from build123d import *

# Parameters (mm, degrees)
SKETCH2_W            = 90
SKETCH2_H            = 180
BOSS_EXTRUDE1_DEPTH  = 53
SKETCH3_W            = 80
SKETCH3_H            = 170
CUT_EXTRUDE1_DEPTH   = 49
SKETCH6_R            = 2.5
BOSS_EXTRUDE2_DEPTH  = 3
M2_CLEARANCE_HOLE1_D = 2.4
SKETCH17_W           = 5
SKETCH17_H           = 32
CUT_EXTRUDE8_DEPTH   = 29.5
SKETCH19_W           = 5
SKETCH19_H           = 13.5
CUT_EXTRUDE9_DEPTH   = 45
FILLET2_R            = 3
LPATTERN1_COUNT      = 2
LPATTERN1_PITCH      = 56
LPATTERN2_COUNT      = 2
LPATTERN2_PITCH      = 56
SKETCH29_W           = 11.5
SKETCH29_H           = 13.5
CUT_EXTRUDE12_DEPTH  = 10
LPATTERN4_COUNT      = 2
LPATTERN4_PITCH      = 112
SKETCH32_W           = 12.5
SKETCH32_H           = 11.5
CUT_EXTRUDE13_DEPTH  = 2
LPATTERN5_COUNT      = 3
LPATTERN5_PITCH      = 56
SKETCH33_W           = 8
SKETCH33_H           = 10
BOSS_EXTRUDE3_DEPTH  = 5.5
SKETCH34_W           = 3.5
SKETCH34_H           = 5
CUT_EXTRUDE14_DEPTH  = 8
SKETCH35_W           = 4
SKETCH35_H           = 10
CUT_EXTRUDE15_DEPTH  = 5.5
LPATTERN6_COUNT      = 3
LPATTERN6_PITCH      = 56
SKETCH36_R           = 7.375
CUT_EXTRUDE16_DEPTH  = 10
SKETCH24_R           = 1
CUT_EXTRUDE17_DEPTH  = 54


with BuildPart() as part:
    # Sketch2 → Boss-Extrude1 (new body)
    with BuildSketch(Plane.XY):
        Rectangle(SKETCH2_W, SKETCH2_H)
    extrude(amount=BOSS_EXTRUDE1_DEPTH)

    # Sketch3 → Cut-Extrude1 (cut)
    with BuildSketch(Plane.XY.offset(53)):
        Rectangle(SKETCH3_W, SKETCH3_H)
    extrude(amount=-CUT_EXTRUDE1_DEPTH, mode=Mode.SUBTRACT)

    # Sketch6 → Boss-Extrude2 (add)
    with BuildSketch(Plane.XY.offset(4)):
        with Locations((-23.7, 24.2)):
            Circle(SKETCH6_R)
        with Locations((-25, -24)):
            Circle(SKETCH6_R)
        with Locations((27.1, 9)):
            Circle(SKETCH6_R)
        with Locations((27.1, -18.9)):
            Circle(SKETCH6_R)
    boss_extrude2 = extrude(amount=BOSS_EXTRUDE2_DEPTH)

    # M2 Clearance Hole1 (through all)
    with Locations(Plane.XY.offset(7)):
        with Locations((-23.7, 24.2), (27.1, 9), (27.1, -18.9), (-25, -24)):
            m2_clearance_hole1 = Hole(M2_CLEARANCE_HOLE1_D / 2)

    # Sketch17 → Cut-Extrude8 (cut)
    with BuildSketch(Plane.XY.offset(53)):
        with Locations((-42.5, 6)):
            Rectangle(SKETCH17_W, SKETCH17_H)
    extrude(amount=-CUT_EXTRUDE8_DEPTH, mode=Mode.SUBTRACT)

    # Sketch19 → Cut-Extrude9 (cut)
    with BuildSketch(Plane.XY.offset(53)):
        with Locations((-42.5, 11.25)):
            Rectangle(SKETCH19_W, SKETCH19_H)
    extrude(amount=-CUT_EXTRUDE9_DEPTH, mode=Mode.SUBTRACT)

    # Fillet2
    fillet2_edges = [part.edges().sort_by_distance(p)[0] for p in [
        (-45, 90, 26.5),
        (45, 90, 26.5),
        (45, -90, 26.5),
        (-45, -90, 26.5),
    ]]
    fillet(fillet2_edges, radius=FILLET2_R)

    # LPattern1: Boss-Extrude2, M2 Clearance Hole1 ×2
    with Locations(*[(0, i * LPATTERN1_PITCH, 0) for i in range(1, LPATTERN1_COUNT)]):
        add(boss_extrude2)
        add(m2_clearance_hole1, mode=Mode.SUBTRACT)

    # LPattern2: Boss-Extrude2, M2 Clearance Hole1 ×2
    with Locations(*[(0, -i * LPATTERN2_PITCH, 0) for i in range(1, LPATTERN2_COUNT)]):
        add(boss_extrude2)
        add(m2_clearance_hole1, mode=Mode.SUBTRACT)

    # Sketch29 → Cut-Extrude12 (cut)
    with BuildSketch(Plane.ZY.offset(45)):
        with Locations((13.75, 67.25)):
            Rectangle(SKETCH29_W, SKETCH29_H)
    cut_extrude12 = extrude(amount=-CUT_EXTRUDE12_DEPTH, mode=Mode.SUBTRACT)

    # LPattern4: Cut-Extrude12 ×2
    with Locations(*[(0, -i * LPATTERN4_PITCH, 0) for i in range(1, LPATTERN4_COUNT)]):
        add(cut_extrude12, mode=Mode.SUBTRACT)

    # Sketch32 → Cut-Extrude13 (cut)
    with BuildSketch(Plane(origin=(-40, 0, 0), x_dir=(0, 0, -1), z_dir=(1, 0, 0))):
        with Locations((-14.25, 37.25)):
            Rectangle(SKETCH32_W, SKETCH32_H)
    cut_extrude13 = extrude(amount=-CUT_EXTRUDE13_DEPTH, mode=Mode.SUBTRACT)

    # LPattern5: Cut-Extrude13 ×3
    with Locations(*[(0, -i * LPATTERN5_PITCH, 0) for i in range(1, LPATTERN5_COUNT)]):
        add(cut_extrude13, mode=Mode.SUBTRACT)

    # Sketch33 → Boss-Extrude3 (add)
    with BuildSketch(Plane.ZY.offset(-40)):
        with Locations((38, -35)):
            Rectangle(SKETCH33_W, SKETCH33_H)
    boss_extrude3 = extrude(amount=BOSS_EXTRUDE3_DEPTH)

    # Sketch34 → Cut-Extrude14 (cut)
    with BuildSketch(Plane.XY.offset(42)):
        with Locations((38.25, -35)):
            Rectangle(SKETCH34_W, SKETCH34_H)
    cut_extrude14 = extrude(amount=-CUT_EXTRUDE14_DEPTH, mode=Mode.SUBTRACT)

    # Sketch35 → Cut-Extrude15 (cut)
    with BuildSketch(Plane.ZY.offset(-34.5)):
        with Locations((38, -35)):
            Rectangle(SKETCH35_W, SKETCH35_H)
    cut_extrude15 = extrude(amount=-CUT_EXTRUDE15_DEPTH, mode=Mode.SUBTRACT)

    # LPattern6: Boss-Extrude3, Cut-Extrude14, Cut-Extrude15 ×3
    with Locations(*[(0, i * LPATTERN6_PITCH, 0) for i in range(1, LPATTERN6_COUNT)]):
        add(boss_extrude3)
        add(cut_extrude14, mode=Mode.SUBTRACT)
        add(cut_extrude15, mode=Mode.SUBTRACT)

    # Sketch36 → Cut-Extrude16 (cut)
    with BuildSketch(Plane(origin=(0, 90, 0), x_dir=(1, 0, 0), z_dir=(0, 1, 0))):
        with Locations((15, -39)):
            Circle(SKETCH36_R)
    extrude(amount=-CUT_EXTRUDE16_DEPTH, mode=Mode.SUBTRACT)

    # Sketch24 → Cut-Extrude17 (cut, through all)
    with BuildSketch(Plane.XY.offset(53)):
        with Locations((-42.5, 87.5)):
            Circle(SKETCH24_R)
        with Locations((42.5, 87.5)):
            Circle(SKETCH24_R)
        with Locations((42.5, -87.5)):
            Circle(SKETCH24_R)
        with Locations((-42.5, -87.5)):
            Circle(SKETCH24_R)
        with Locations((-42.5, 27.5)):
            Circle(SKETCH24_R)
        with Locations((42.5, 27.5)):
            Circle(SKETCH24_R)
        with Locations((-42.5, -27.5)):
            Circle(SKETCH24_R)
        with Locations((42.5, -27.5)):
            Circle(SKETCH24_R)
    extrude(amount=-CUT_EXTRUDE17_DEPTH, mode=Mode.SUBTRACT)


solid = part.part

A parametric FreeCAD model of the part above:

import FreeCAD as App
import Part
import Sketcher
from FreeCAD import Vector
Q = App.Units.Quantity


def edges_at(feature, points):
    """Names of the edges that pass closest to the given points."""
    edges = feature.Shape.Edges
    near = lambda p: min(range(len(edges)), key=lambda i: edges[i].distToShape(Part.Vertex(*p))[0])
    return sorted({f"Edge{near(p) + 1}" for p in points})


def add_polygon(sketch, points):
    """Adds a closed chain of lines whose ends are joined by coincident constraints."""
    first, n = sketch.GeometryCount, len(points)
    for a, b in zip(points, points[1:] + points[:1]):
        sketch.addGeometry(Part.LineSegment(App.Vector(*a, 0), App.Vector(*b, 0)), False)
    for i in range(n):
        sketch.addConstraint(Sketcher.Constraint("Coincident", first + i, 2, first + (i + 1) % n, 1))

doc = App.newDocument("Part")
body = doc.addObject("PartDesign::Body", "Body")

# Sketch on XY plane
sketch1 = body.newObject("Sketcher::SketchObject", "Sketch")
sketch1.AttachmentSupport = (doc.getObject("XY_Plane"), [""])
sketch1.MapMode = "FlatFace"
add_polygon(sketch1, [(-45, 90), (-45, -90), (45, -90), (45, 90)])  # lines 0-3
sketch1.addConstraint([
    Sketcher.Constraint("Vertical", 0),
    Sketcher.Constraint("Horizontal", 1),
    Sketcher.Constraint("Vertical", 2),
    Sketcher.Constraint("Horizontal", 3),
    Sketcher.Constraint("Symmetric", 0, 2, 2, 2, -1, 1),
    Sketcher.Constraint("DistanceX", 1, 1, 1, 2, Q("90 mm")),
    Sketcher.Constraint("DistanceY", 0, 2, 0, 1, Q("180 mm")),
])
pad1 = body.newObject("PartDesign::Pad", "Pad")
pad1.Profile = sketch1
pad1.Length = 53

# Sketch on XY plane
sketch2 = body.newObject("Sketcher::SketchObject", "Sketch001")
sketch2.AttachmentSupport = (doc.getObject("XY_Plane"), [""])
sketch2.MapMode = "FlatFace"
sketch2.AttachmentOffset = App.Placement(Vector(0, 0, 53), App.Rotation())
add_polygon(sketch2, [(-40, 85), (-40, -85), (40, -85), (40, 85)])  # lines 0-3
sketch2.addConstraint([
    Sketcher.Constraint("Vertical", 0),
    Sketcher.Constraint("Horizontal", 1),
    Sketcher.Constraint("Vertical", 2),
    Sketcher.Constraint("Horizontal", 3),
    Sketcher.Constraint("Symmetric", 0, 2, 2, 2, -1, 1),
    Sketcher.Constraint("DistanceX", 1, 1, 1, 2, Q("80 mm")),
    Sketcher.Constraint("DistanceY", 0, 2, 0, 1, Q("170 mm")),
])
pocket1 = body.newObject("PartDesign::Pocket", "Pocket")
pocket1.Profile = sketch2
pocket1.Length = 49

# Sketch on XY plane
sketch3 = body.newObject("Sketcher::SketchObject", "Sketch002")
sketch3.AttachmentSupport = (doc.getObject("XY_Plane"), [""])
sketch3.MapMode = "FlatFace"
sketch3.AttachmentOffset = App.Placement(Vector(0, 0, 4), App.Rotation())
sketch3.addGeometry([
    Part.Circle(Vector(-23.7, 24.2, 0), Vector(0, 0, 1), 2.5),
    Part.Circle(Vector(-25, -24, 0), Vector(0, 0, 1), 2.5),
    Part.Circle(Vector(27.1, 9, 0), Vector(0, 0, 1), 2.5),
    Part.Circle(Vector(27.1, -18.9, 0), Vector(0, 0, 1), 2.5),
], False)
sketch3.addConstraint([
    Sketcher.Constraint("Equal", 0, 1),
    Sketcher.Constraint("Equal", 1, 2),
    Sketcher.Constraint("Equal", 2, 3),
    Sketcher.Constraint("Vertical", 2, 3, 3, 3),
    Sketcher.Constraint("Diameter", 0, Q("5 mm")),
    Sketcher.Constraint("DistanceX", 1, 3, -1, 1, Q("25 mm")),
    Sketcher.Constraint("DistanceY", 1, 3, -1, 1, Q("24 mm")),
    Sketcher.Constraint("DistanceY", -1, 1, 2, 3, Q("9 mm")),
    Sketcher.Constraint("DistanceX", 0, 3, -1, 1, Q("23.7 mm")),
    Sketcher.Constraint("DistanceY", -1, 1, 0, 3, Q("24.2 mm")),
    Sketcher.Constraint("DistanceX", -1, 1, 2, 3, Q("27.1 mm")),
    Sketcher.Constraint("DistanceY", 3, 3, -1, 1, Q("18.9 mm")),
])
pad2 = body.newObject("PartDesign::Pad", "Pad001")
pad2.Profile = sketch3
pad2.Length = 3

# Sketch on XY plane
sketch4 = body.newObject("Sketcher::SketchObject", "Sketch003")
sketch4.AttachmentSupport = (doc.getObject("XY_Plane"), [""])
sketch4.MapMode = "FlatFace"
sketch4.AttachmentOffset = App.Placement(Vector(0, 0, 7), App.Rotation())
sketch4.addGeometry([
    Part.Circle(Vector(-23.7, 24.2, 0), Vector(0, 0, 1), 1.2),
    Part.Circle(Vector(27.1, 9, 0), Vector(0, 0, 1), 1.2),
    Part.Circle(Vector(27.1, -18.9, 0), Vector(0, 0, 1), 1.2),
    Part.Circle(Vector(-25, -24, 0), Vector(0, 0, 1), 1.2),
], False)
sketch4.addConstraint([
    Sketcher.Constraint("Equal", 0, 1),
    Sketcher.Constraint("Equal", 1, 2),
    Sketcher.Constraint("Equal", 2, 3),
    Sketcher.Constraint("Vertical", 1, 3, 2, 3),
    Sketcher.Constraint("Diameter", 0, Q("2.4 mm")),
    Sketcher.Constraint("DistanceY", -1, 1, 1, 3, Q("9 mm")),
    Sketcher.Constraint("DistanceX", 3, 3, -1, 1, Q("25 mm")),
    Sketcher.Constraint("DistanceY", 3, 3, -1, 1, Q("24 mm")),
    Sketcher.Constraint("DistanceX", 0, 3, -1, 1, Q("23.7 mm")),
    Sketcher.Constraint("DistanceY", -1, 1, 0, 3, Q("24.2 mm")),
    Sketcher.Constraint("DistanceX", -1, 1, 1, 3, Q("27.1 mm")),
    Sketcher.Constraint("DistanceY", 2, 3, -1, 1, Q("18.9 mm")),
])
doc.recompute()
hole = body.newObject("PartDesign::Hole", "Hole")
hole.Profile = sketch4
hole.ThreadType = "None"
hole.Diameter = 2.4
hole.DepthType = "ThroughAll"

# Sketch on XY plane
sketch5 = body.newObject("Sketcher::SketchObject", "Sketch004")
sketch5.AttachmentSupport = (doc.getObject("XY_Plane"), [""])
sketch5.MapMode = "FlatFace"
sketch5.AttachmentOffset = App.Placement(Vector(0, 0, 53), App.Rotation())
add_polygon(sketch5, [(-45, 22), (-45, -10), (-40, -10), (-40, 22)])  # lines 0-3
sketch5.addConstraint([
    Sketcher.Constraint("Vertical", 0),
    Sketcher.Constraint("Horizontal", 1),
    Sketcher.Constraint("Vertical", 2),
    Sketcher.Constraint("Horizontal", 3),
    Sketcher.Constraint("DistanceX", 1, 1, 1, 2, Q("5 mm")),
    Sketcher.Constraint("DistanceY", 0, 2, 0, 1, Q("32 mm")),
    Sketcher.Constraint("DistanceX", 0, 2, -1, 1, Q("45 mm")),
    Sketcher.Constraint("DistanceY", 0, 2, -1, 1, Q("10 mm")),
])
pocket2 = body.newObject("PartDesign::Pocket", "Pocket001")
pocket2.Profile = sketch5
pocket2.Length = 29.5

# Sketch on XY plane
sketch6 = body.newObject("Sketcher::SketchObject", "Sketch005")
sketch6.AttachmentSupport = (doc.getObject("XY_Plane"), [""])
sketch6.MapMode = "FlatFace"
sketch6.AttachmentOffset = App.Placement(Vector(0, 0, 53), App.Rotation())
add_polygon(sketch6, [(-45, 18), (-45, 4), (-40, 4), (-40, 18)])  # lines 0-3
sketch6.addConstraint([
    Sketcher.Constraint("Vertical", 0),
    Sketcher.Constraint("Horizontal", 1),
    Sketcher.Constraint("Vertical", 2),
    Sketcher.Constraint("Horizontal", 3),
    Sketcher.Constraint("DistanceX", 1, 1, 1, 2, Q("5 mm")),
    Sketcher.Constraint("DistanceY", 0, 2, 0, 1, Q("13.5 mm")),
    Sketcher.Constraint("DistanceX", 0, 2, -1, 1, Q("45 mm")),
    Sketcher.Constraint("DistanceY", -1, 1, 2, 2, Q("18 mm")),
])
pocket3 = body.newObject("PartDesign::Pocket", "Pocket002")
pocket3.Profile = sketch6
pocket3.Length = 45
doc.recompute()

fillet = body.newObject("PartDesign::Fillet", "Fillet")
fillet.Base = (pocket3, edges_at(pocket3, [
    (-45, 90, 26.5),
    (45, 90, 26.5),
    (45, -90, 26.5),
    (-45, -90, 26.5),
]))
fillet.Radius = 3
doc.recompute()

linearpattern = body.newObject("PartDesign::LinearPattern", "LinearPattern")
linearpattern.Originals = [pad2, hole]
linearpattern.Direction = (doc.getObject("Y_Axis"), [""])
linearpattern.Mode = "offset"
linearpattern.Offset = 56
linearpattern.Occurrences = 2
body.Tip = linearpattern
doc.recompute()

linearpattern2 = body.newObject("PartDesign::LinearPattern", "LinearPattern001")
linearpattern2.Originals = [pad2, hole]
linearpattern2.Direction = (doc.getObject("Y_Axis"), [""])
linearpattern2.Mode = "offset"
linearpattern2.Offset = 56
linearpattern2.Occurrences = 2
linearpattern2.Reversed = True
body.Tip = linearpattern2

# Sketch on YZ plane
sketch7 = body.newObject("Sketcher::SketchObject", "Sketch006")
sketch7.AttachmentSupport = (doc.getObject("YZ_Plane"), [""])
sketch7.MapMode = "FlatFace"
sketch7.AttachmentOffset = App.Placement(Vector(0, 0, -45), App.Rotation())
add_polygon(sketch7, [(74, 8), (60, 8), (60, 20), (74, 20)])  # lines 0-3
sketch7.addConstraint([
    Sketcher.Constraint("Horizontal", 0),
    Sketcher.Constraint("Vertical", 1),
    Sketcher.Constraint("Horizontal", 2),
    Sketcher.Constraint("Vertical", 3),
    Sketcher.Constraint("DistanceX", 0, 2, 0, 1, Q("13.5 mm")),
    Sketcher.Constraint("DistanceY", 1, 1, 1, 2, Q("11.5 mm")),
    Sketcher.Constraint("DistanceY", -1, 1, 0, 2, Q("8 mm")),
    Sketcher.Constraint("DistanceX", -1, 1, 2, 2, Q("74 mm")),
])
pocket4 = body.newObject("PartDesign::Pocket", "Pocket003")
pocket4.Profile = sketch7
pocket4.Length = 10
pocket4.Reversed = True
doc.recompute()

linearpattern3 = body.newObject("PartDesign::LinearPattern", "LinearPattern002")
linearpattern3.Originals = [pocket4]
linearpattern3.Direction = (doc.getObject("Y_Axis"), [""])
linearpattern3.Mode = "offset"
linearpattern3.Offset = 112
linearpattern3.Occurrences = 2
linearpattern3.Reversed = True
body.Tip = linearpattern3

# Sketch on YZ plane
sketch8 = body.newObject("Sketcher::SketchObject", "Sketch007")
sketch8.AttachmentSupport = (doc.getObject("YZ_Plane"), [""])
sketch8.MapMode = "FlatFace"
sketch8.AttachmentOffset = App.Placement(Vector(0, 0, -40), App.Rotation())
add_polygon(sketch8, [(43, 20), (32, 20), (32, 8), (43, 8)])  # lines 0-3
sketch8.addConstraint([
    Sketcher.Constraint("Horizontal", 0),
    Sketcher.Constraint("Vertical", 1),
    Sketcher.Constraint("Horizontal", 2),
    Sketcher.Constraint("Vertical", 3),
    Sketcher.Constraint("DistanceX", 0, 2, 0, 1, Q("11.5 mm")),
    Sketcher.Constraint("DistanceY", 1, 2, 1, 1, Q("12.5 mm")),
    Sketcher.Constraint("DistanceY", -1, 1, 1, 2, Q("8 mm")),
    Sketcher.Constraint("DistanceX", -1, 1, 2, 2, Q("43 mm")),
])
pocket5 = body.newObject("PartDesign::Pocket", "Pocket004")
pocket5.Profile = sketch8
pocket5.Length = 2
doc.recompute()

linearpattern4 = body.newObject("PartDesign::LinearPattern", "LinearPattern003")
linearpattern4.Originals = [pocket5]
linearpattern4.Direction = (doc.getObject("Y_Axis"), [""])
linearpattern4.Mode = "offset"
linearpattern4.Offset = 56
linearpattern4.Occurrences = 3
linearpattern4.Reversed = True
body.Tip = linearpattern4

# Sketch on YZ plane
sketch9 = body.newObject("Sketcher::SketchObject", "Sketch008")
sketch9.AttachmentSupport = (doc.getObject("YZ_Plane"), [""])
sketch9.MapMode = "FlatFace"
sketch9.AttachmentOffset = App.Placement(Vector(0, 0, 40), App.Rotation())
add_polygon(sketch9, [(-30, 34), (-40, 34), (-40, 42), (-30, 42)])  # lines 0-3
sketch9.addConstraint([
    Sketcher.Constraint("Horizontal", 0),
    Sketcher.Constraint("Vertical", 1),
    Sketcher.Constraint("Horizontal", 2),
    Sketcher.Constraint("Vertical", 3),
    Sketcher.Constraint("DistanceX", 0, 2, 0, 1, Q("10 mm")),
    Sketcher.Constraint("DistanceY", 1, 1, 1, 2, Q("8 mm")),
    Sketcher.Constraint("DistanceX", 0, 2, -1, 1, Q("40 mm")),
    Sketcher.Constraint("DistanceY", -1, 1, 0, 2, Q("34 mm")),
])
pad3 = body.newObject("PartDesign::Pad", "Pad002")
pad3.Profile = sketch9
pad3.Length = 5.5
pad3.Reversed = True

# Sketch on XY plane
sketch10 = body.newObject("Sketcher::SketchObject", "Sketch009")
sketch10.AttachmentSupport = (doc.getObject("XY_Plane"), [""])
sketch10.MapMode = "FlatFace"
sketch10.AttachmentOffset = App.Placement(Vector(0, 0, 42), App.Rotation())
add_polygon(sketch10, [(36.5, -32.5), (36.5, -37.5), (40, -37.5), (40, -32.5)])  # lines 0-3
sketch10.addConstraint([
    Sketcher.Constraint("Vertical", 0),
    Sketcher.Constraint("Horizontal", 1),
    Sketcher.Constraint("Vertical", 2),
    Sketcher.Constraint("Horizontal", 3),
    Sketcher.Constraint("DistanceY", 0, 2, 0, 1, Q("5 mm")),
    Sketcher.Constraint("DistanceX", 1, 1, 1, 2, Q("3.5 mm")),
    Sketcher.Constraint("DistanceX", -1, 1, 1, 2, Q("40 mm")),
    Sketcher.Constraint("DistanceY", 0, 2, -1, 1, Q("37.5 mm")),
])
pocket6 = body.newObject("PartDesign::Pocket", "Pocket005")
pocket6.Profile = sketch10
pocket6.Length = 8

# Sketch on YZ plane
sketch11 = body.newObject("Sketcher::SketchObject", "Sketch010")
sketch11.AttachmentSupport = (doc.getObject("YZ_Plane"), [""])
sketch11.MapMode = "FlatFace"
sketch11.AttachmentOffset = App.Placement(Vector(0, 0, 34.5), App.Rotation())
add_polygon(sketch11, [(-30, 36), (-40, 36), (-40, 40), (-30, 40)])  # lines 0-3
sketch11.addConstraint([
    Sketcher.Constraint("Horizontal", 0),
    Sketcher.Constraint("Vertical", 1),
    Sketcher.Constraint("Horizontal", 2),
    Sketcher.Constraint("Vertical", 3),
    Sketcher.Constraint("DistanceX", 0, 2, 0, 1, Q("10 mm")),
    Sketcher.Constraint("DistanceY", 1, 1, 1, 2, Q("4 mm")),
    Sketcher.Constraint("DistanceX", 0, 2, -1, 1, Q("40 mm")),
    Sketcher.Constraint("DistanceY", -1, 1, 0, 2, Q("36 mm")),
])
pocket7 = body.newObject("PartDesign::Pocket", "Pocket006")
pocket7.Profile = sketch11
pocket7.Length = 5.5
pocket7.Reversed = True
doc.recompute()

linearpattern5 = body.newObject("PartDesign::LinearPattern", "LinearPattern004")
linearpattern5.Originals = [pad3, pocket6, pocket7]
linearpattern5.Direction = (doc.getObject("Y_Axis"), [""])
linearpattern5.Mode = "offset"
linearpattern5.Offset = 56
linearpattern5.Occurrences = 3
body.Tip = linearpattern5

# Sketch on XZ plane
sketch12 = body.newObject("Sketcher::SketchObject", "Sketch011")
sketch12.AttachmentSupport = (doc.getObject("XZ_Plane"), [""])
sketch12.MapMode = "FlatFace"
sketch12.AttachmentOffset = App.Placement(Vector(0, 0, -90), App.Rotation())
sketch12.addGeometry(Part.Circle(Vector(15, 39, 0), Vector(0, 0, 1), 7), False)
sketch12.addConstraint([
    Sketcher.Constraint("Diameter", 0, Q("14.75 mm")),
    Sketcher.Constraint("DistanceX", -1, 1, 0, 3, Q("15 mm")),
    Sketcher.Constraint("DistanceY", -1, 1, 0, 3, Q("39 mm")),
])
pocket8 = body.newObject("PartDesign::Pocket", "Pocket007")
pocket8.Profile = sketch12
pocket8.Length = 10
pocket8.Reversed = True

# Sketch on XY plane
sketch13 = body.newObject("Sketcher::SketchObject", "Sketch012")
sketch13.AttachmentSupport = (doc.getObject("XY_Plane"), [""])
sketch13.MapMode = "FlatFace"
sketch13.AttachmentOffset = App.Placement(Vector(0, 0, 53), App.Rotation())
sketch13.addGeometry([
    Part.Circle(Vector(-42.5, 87.5, 0), Vector(0, 0, 1), 1),  # 0
    Part.Circle(Vector(42.5, 87.5, 0), Vector(0, 0, 1), 1),  # 1
    Part.Circle(Vector(42.5, -87.5, 0), Vector(0, 0, 1), 1),  # 2
    Part.Circle(Vector(-42.5, -87.5, 0), Vector(0, 0, 1), 1),  # 3
    Part.Circle(Vector(-42.5, 27.5, 0), Vector(0, 0, 1), 1),  # 4
    Part.Circle(Vector(42.5, 27.5, 0), Vector(0, 0, 1), 1),  # 5
    Part.Circle(Vector(-42.5, -27.5, 0), Vector(0, 0, 1), 1),  # 6
    Part.Circle(Vector(42.5, -27.5, 0), Vector(0, 0, 1), 1),  # 7
], False)
sketch13.addConstraint([
    Sketcher.Constraint("Equal", 0, 1),
    Sketcher.Constraint("Equal", 1, 2),
    Sketcher.Constraint("Equal", 2, 3),
    Sketcher.Constraint("Equal", 3, 4),
    Sketcher.Constraint("Equal", 4, 5),
    Sketcher.Constraint("Equal", 5, 6),
    Sketcher.Constraint("Equal", 6, 7),
    Sketcher.Constraint("Symmetric", 0, 3, 2, 3, -1, 1),
    Sketcher.Constraint("Symmetric", 1, 3, 3, 3, -1, 1),
    Sketcher.Constraint("Symmetric", 5, 3, 6, 3, -1, 1),
    Sketcher.Constraint("Symmetric", 4, 3, 7, 3, -1, 1),
    Sketcher.Constraint("Symmetric", 0, 3, 1, 3, -2),
    Sketcher.Constraint("Symmetric", 4, 3, 5, 3, -2),
    Sketcher.Constraint("Vertical", 3, 3, 4, 3),
    Sketcher.Constraint("Diameter", 0, Q("2 mm")),
    Sketcher.Constraint("DistanceX", 0, 3, 1, 3, Q("85 mm")),
    Sketcher.Constraint("DistanceY", 2, 3, 1, 3, Q("175 mm")),
    Sketcher.Constraint("DistanceY", 4, 3, 0, 3, Q("60 mm")),
])
pocket9 = body.newObject("PartDesign::Pocket", "Pocket008")
pocket9.Profile = sketch13
pocket9.Type = "ThroughAll"

doc.recompute()
